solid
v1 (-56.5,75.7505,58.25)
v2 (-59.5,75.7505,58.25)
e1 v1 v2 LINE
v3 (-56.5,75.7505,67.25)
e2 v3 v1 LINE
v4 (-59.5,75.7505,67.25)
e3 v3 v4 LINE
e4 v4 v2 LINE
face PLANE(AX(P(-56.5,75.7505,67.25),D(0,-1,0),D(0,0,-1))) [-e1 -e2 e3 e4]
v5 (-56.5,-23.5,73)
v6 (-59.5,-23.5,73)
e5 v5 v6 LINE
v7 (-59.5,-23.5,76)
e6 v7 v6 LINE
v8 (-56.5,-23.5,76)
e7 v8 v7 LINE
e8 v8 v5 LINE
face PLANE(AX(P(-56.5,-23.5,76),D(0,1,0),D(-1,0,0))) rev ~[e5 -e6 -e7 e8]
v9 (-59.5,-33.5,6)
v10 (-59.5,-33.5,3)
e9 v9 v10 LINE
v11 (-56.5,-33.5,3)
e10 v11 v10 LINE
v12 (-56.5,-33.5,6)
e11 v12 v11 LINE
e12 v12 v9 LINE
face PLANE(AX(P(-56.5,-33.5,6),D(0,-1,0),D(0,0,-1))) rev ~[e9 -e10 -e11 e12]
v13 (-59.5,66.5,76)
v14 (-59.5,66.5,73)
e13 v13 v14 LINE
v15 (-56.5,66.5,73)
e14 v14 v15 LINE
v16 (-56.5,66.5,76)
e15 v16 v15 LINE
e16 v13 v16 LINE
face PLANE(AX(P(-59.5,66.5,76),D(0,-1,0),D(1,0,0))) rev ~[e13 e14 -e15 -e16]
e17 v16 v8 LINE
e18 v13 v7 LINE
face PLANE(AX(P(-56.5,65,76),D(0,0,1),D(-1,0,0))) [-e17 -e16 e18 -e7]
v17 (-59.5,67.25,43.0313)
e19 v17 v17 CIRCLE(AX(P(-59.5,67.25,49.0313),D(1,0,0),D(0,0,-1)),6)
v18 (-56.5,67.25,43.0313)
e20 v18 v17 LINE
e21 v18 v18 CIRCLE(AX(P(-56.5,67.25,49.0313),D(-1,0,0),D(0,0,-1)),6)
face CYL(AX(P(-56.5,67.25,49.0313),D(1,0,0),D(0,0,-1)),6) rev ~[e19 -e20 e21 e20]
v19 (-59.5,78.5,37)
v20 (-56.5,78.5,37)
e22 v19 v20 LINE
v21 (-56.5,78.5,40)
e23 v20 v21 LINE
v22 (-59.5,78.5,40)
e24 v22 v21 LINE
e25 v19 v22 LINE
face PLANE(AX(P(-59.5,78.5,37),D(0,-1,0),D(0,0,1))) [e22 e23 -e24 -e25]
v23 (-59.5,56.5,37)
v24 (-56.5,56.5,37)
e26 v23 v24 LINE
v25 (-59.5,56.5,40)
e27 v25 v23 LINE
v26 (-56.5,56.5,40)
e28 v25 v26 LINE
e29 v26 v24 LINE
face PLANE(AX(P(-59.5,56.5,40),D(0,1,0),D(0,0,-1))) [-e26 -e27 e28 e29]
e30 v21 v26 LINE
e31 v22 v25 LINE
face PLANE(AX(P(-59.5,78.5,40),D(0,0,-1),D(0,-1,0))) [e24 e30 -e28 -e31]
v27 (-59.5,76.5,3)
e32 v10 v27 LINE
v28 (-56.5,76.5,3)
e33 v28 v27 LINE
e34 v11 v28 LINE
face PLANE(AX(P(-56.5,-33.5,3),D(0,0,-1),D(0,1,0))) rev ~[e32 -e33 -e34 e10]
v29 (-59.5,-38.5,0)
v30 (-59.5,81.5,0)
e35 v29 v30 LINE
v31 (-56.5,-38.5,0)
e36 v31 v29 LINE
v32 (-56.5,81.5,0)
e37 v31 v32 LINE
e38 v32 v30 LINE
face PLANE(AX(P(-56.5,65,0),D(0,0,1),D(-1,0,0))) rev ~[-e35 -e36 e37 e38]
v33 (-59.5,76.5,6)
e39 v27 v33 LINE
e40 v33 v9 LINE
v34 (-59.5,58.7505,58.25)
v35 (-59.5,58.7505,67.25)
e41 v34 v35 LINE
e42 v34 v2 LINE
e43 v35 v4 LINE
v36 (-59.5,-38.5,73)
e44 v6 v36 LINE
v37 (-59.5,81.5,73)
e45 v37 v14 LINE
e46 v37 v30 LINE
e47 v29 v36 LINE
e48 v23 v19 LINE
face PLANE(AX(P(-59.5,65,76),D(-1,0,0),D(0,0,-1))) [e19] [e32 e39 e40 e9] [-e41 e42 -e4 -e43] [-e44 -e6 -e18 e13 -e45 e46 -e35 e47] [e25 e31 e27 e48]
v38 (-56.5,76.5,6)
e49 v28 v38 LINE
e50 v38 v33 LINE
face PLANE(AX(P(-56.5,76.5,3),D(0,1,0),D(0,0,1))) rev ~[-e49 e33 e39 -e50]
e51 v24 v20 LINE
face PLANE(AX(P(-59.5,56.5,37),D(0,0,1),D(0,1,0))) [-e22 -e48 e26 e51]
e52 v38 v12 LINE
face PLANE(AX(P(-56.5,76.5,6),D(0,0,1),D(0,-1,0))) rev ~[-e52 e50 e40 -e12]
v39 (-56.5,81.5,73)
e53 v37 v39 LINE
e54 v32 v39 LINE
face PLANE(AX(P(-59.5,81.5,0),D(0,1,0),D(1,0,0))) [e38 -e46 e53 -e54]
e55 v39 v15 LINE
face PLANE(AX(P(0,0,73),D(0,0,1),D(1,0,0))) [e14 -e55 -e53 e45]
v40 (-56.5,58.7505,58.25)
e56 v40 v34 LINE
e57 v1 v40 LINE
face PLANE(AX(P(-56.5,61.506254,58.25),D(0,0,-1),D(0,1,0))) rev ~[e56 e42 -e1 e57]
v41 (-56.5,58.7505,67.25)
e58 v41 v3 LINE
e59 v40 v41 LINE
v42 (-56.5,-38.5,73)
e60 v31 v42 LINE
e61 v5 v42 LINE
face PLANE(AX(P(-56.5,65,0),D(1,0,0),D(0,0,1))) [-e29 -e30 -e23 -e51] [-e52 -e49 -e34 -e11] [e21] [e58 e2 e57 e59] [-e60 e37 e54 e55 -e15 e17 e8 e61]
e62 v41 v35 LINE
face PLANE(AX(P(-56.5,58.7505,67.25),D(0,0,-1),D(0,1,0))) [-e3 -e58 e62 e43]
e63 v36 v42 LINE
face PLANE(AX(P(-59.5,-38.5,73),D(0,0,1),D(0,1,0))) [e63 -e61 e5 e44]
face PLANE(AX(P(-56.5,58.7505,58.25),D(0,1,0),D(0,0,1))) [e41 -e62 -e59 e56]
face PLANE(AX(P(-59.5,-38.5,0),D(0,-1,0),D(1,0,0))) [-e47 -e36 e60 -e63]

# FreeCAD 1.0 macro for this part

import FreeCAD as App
import Part
import Sketcher

V = App.Vector
Q = App.Units.Quantity


def add_polygon(sketch, points):
    """Adds a closed chain of lines whose ends are joined by coincident constraints."""
    first, n = sketch.GeometryCount, len(points)
    for a, b in zip(points, points[1:] + points[:1]):
        sketch.addGeometry(Part.LineSegment(App.Vector(*a, 0), App.Vector(*b, 0)), False)
    for i in range(n):
        sketch.addConstraint(Sketcher.Constraint("Coincident", first + i, 2, first + (i + 1) % n, 1))

doc = App.newDocument("Part")
params = doc.addObject("Spreadsheet::Sheet", "Params")
for row, (alias, value) in enumerate([
    ("sketch1_width", "3 mm"),
    ("sketch1_height", "90 mm"),
    ("pad1_length", "76 mm"),
    ("sketch2_width", "3 mm"),
    ("sketch2_height", "76 mm"),
    ("pad2_length", "13.5 mm"),
    ("sketch3_width", "3 mm"),
    ("sketch3_height", "76 mm"),
    ("pad3_length", "16.5 mm"),
    ("sketch4_width", "10 mm"),
    ("sketch4_height", "3 mm"),
    ("pocket1_length", "10 mm"),
    ("sketch5_height", "15 mm"),
    ("sketch5_width", "3 mm"),
    ("pocket2_length", "3 mm"),
    ("sketch6_diameter", "12 mm"),
    ("sketch6_height", "9 mm"),
    ("sketch6_width", "17 mm"),
    ("pocket3_length", "3 mm"),
    ("sketch7_width", "22 mm"),
    ("sketch7_height", "3 mm"),
    ("pocket4_length", "3 mm"),
    ("sketch8_width", "110 mm"),
    ("sketch8_height", "3 mm"),
    ("pocket5_length", "3 mm"),
], start=1):
    params.set(f"A{row}", alias)
    params.set(f"B{row}", "=" + value)
    params.setAlias(f"B{row}", alias)

body = doc.addObject("PartDesign::Body", "Body")

# Sketch on XY plane
sketch1 = doc.addObject("Sketcher::SketchObject", "Sketch")
body.addObject(sketch1)
sketch1.AttachmentSupport = (doc.XY_Plane, [""])
sketch1.MapMode = "FlatFace"
add_polygon(sketch1, [(-59.5, -25), (-56.5, -25), (-56.5, 65), (-59.5, 65)])  # lines 0-3
sketch1.addConstraint(Sketcher.Constraint("Horizontal", 0))
sketch1.addConstraint(Sketcher.Constraint("Vertical", 1))
sketch1.addConstraint(Sketcher.Constraint("Horizontal", 2))
sketch1.addConstraint(Sketcher.Constraint("Vertical", 3))
sketch1.addConstraint(Sketcher.Constraint("DistanceX", 0, 1, 0, 2, Q("3 mm")))
sketch1.addConstraint(Sketcher.Constraint("DistanceY", 1, 1, 1, 2, Q("90 mm")))
sketch1.addConstraint(Sketcher.Constraint("DistanceY", 0, 2, -1, 1, Q("25 mm")))
sketch1.addConstraint(Sketcher.Constraint("DistanceX", 0, 2, -1, 1, Q("56.5 mm")))
sketch1.setExpression("Constraints[8]", "Params.sketch1_width")
sketch1.setExpression("Constraints[9]", "Params.sketch1_height")
pad1 = doc.addObject("PartDesign::Pad", "Pad")
body.addObject(pad1)
pad1.Profile = sketch1
pad1.setExpression("Length", "Params.pad1_length")

# Sketch on XZ plane
sketch2 = doc.addObject("Sketcher::SketchObject", "Sketch001")
body.addObject(sketch2)
sketch2.AttachmentSupport = (doc.XZ_Plane, [""])
sketch2.MapMode = "FlatFace"
sketch2.AttachmentOffset = App.Placement(V(0, 0, 25), App.Rotation())
add_polygon(sketch2, [(-59.5, 0), (-56.5, 0), (-56.5, 76), (-59.5, 76)])  # lines 0-3
sketch2.addConstraint(Sketcher.Constraint("Horizontal", 0))
sketch2.addConstraint(Sketcher.Constraint("Vertical", 1))
sketch2.addConstraint(Sketcher.Constraint("Horizontal", 2))
sketch2.addConstraint(Sketcher.Constraint("Vertical", 3))
sketch2.addConstraint(Sketcher.Constraint("PointOnObject", 0, 2, -1))
sketch2.addConstraint(Sketcher.Constraint("DistanceX", 0, 1, 0, 2, Q("3 mm")))
sketch2.addConstraint(Sketcher.Constraint("DistanceY", 1, 1, 1, 2, Q("76 mm")))
sketch2.addConstraint(Sketcher.Constraint("DistanceX", 0, 2, -1, 1, Q("56.5 mm")))
sketch2.setExpression("Constraints[9]", "Params.sketch2_width")
sketch2.setExpression("Constraints[10]", "Params.sketch2_height")
pad2 = doc.addObject("PartDesign::Pad", "Pad001")
body.addObject(pad2)
pad2.Profile = sketch2
pad2.setExpression("Length", "Params.pad2_length")

# Sketch on XZ plane
sketch3 = doc.addObject("Sketcher::SketchObject", "Sketch002")
body.addObject(sketch3)
sketch3.AttachmentSupport = (doc.XZ_Plane, [""])
sketch3.MapMode = "FlatFace"
sketch3.AttachmentOffset = App.Placement(V(0, 0, -65), App.Rotation())
add_polygon(sketch3, [(-56.5, 76), (-56.5, 0), (-59.5, 0), (-59.5, 76)])  # lines 0-3
sketch3.addConstraint(Sketcher.Constraint("Vertical", 0))
sketch3.addConstraint(Sketcher.Constraint("Horizontal", 1))
sketch3.addConstraint(Sketcher.Constraint("Vertical", 2))
sketch3.addConstraint(Sketcher.Constraint("Horizontal", 3))
sketch3.addConstraint(Sketcher.Constraint("PointOnObject", 0, 2, -1))
sketch3.addConstraint(Sketcher.Constraint("DistanceX", 1, 2, 1, 1, Q("3 mm")))
sketch3.addConstraint(Sketcher.Constraint("DistanceY", 0, 2, 0, 1, Q("76 mm")))
sketch3.addConstraint(Sketcher.Constraint("DistanceX", 0, 2, -1, 1, Q("56.5 mm")))
sketch3.setExpression("Constraints[9]", "Params.sketch3_width")
sketch3.setExpression("Constraints[10]", "Params.sketch3_height")
pad3 = doc.addObject("PartDesign::Pad", "Pad002")
body.addObject(pad3)
pad3.Profile = sketch3
pad3.setExpression("Length", "Params.pad3_length")
pad3.Reversed = True

# Sketch on YZ plane
sketch4 = doc.addObject("Sketcher::SketchObject", "Sketch003")
body.addObject(sketch4)
sketch4.AttachmentSupport = (doc.YZ_Plane, [""])
sketch4.MapMode = "FlatFace"
sketch4.AttachmentOffset = App.Placement(V(0, 0, -59.5), App.Rotation())
add_polygon(sketch4, [(-38.5, 76), (-28.5, 76), (-28.5, 73), (-38.5, 73)])  # lines 0-3
add_polygon(sketch4, [(81.5, 76), (81.5, 73), (71.5, 73), (71.5, 76)])  # lines 4-7
sketch4.addConstraint(Sketcher.Constraint("Horizontal", 0))
sketch4.addConstraint(Sketcher.Constraint("Vertical", 1))
sketch4.addConstraint(Sketcher.Constraint("Horizontal", 2))
sketch4.addConstraint(Sketcher.Constraint("Vertical", 3))
sketch4.addConstraint(Sketcher.Constraint("Vertical", 4))
sketch4.addConstraint(Sketcher.Constraint("Horizontal", 5))
sketch4.addConstraint(Sketcher.Constraint("Vertical", 6))
sketch4.addConstraint(Sketcher.Constraint("Horizontal", 7))
sketch4.addConstraint(Sketcher.Constraint("Horizontal", 2, 2, 4, 2))
sketch4.addConstraint(Sketcher.Constraint("Horizontal", 3, 2, 6, 2))
sketch4.addConstraint(Sketcher.Constraint("Equal", 2, 5))
sketch4.addConstraint(Sketcher.Constraint("DistanceX", 0, 1, 0, 2, Q("10 mm")))
sketch4.addConstraint(Sketcher.Constraint("DistanceY", 1, 2, 1, 1, Q("3 mm")))
sketch4.addConstraint(Sketcher.Constraint("DistanceY", -1, 1, 0, 2, Q("76 mm")))
sketch4.addConstraint(Sketcher.Constraint("DistanceX", 1, 2, 4, 2, Q("110 mm")))
sketch4.addConstraint(Sketcher.Constraint("DistanceX", 0, 2, -1, 1, Q("28.5 mm")))
sketch4.setExpression("Constraints[19]", "Params.sketch4_width")
sketch4.setExpression("Constraints[20]", "Params.sketch4_height")
pocket1 = doc.addObject("PartDesign::Pocket", "Pocket")
body.addObject(pocket1)
pocket1.Profile = sketch4
pocket1.setExpression("Length", "Params.pocket1_length")
pocket1.Reversed = True

# Sketch on XY plane
sketch5 = doc.addObject("Sketcher::SketchObject", "Sketch004")
body.addObject(sketch5)
sketch5.AttachmentSupport = (doc.XY_Plane, [""])
sketch5.MapMode = "FlatFace"
sketch5.AttachmentOffset = App.Placement(V(0, 0, 76), App.Rotation())
add_polygon(sketch5, [(-59.5, -23.5), (-59.5, -38.5), (-56.5, -38.5), (-56.5, -23.5)])  # lines 0-3
add_polygon(sketch5, [(-59.5, 81.5), (-59.5, 66.5), (-56.5, 66.5), (-56.5, 81.5)])  # lines 4-7
sketch5.addConstraint(Sketcher.Constraint("Vertical", 0))
sketch5.addConstraint(Sketcher.Constraint("Horizontal", 1))
sketch5.addConstraint(Sketcher.Constraint("Vertical", 2))
sketch5.addConstraint(Sketcher.Constraint("Horizontal", 3))
sketch5.addConstraint(Sketcher.Constraint("Vertical", 4))
sketch5.addConstraint(Sketcher.Constraint("Horizontal", 5))
sketch5.addConstraint(Sketcher.Constraint("Vertical", 6))
sketch5.addConstraint(Sketcher.Constraint("Horizontal", 7))
sketch5.addConstraint(Sketcher.Constraint("Vertical", 3, 2, 4, 2))
sketch5.addConstraint(Sketcher.Constraint("Vertical", 2, 2, 5, 2))
sketch5.addConstraint(Sketcher.Constraint("Equal", 2, 4))
sketch5.addConstraint(Sketcher.Constraint("DistanceY", 0, 2, 0, 1, Q("15 mm")))
sketch5.addConstraint(Sketcher.Constraint("DistanceX", 1, 1, 1, 2, Q("3 mm")))
sketch5.addConstraint(Sketcher.Constraint("DistanceY", 3, 2, 4, 2, Q("90 mm")))
sketch5.addConstraint(Sketcher.Constraint("DistanceX", 0, 2, -1, 1, Q("59.5 mm")))
sketch5.addConstraint(Sketcher.Constraint("DistanceY", 0, 2, -1, 1, Q("38.5 mm")))
sketch5.setExpression("Constraints[19]", "Params.sketch5_height")
sketch5.setExpression("Constraints[20]", "Params.sketch5_width")
pocket2 = doc.addObject("PartDesign::Pocket", "Pocket001")
body.addObject(pocket2)
pocket2.Profile = sketch5
pocket2.setExpression("Length", "Params.pocket2_length")

# Sketch on YZ plane
sketch6 = doc.addObject("Sketcher::SketchObject", "Sketch005")
body.addObject(sketch6)
sketch6.AttachmentSupport = (doc.YZ_Plane, [""])
sketch6.MapMode = "FlatFace"
sketch6.AttachmentOffset = App.Placement(V(0, 0, -56.5), App.Rotation())
sketch6.addGeometry(Part.Circle(V(67.25, 49.0313, 0), V(0, 0, 1), 6), False)  # 0
add_polygon(sketch6, [(75.7505, 58.25), (75.7505, 67.25), (58.7505, 67.25), (58.7505, 58.25)])  # lines 1-4
sketch6.addConstraint(Sketcher.Constraint("Vertical", 1))
sketch6.addConstraint(Sketcher.Constraint("Horizontal", 2))
sketch6.addConstraint(Sketcher.Constraint("Vertical", 3))
sketch6.addConstraint(Sketcher.Constraint("Horizontal", 4))
sketch6.addConstraint(Sketcher.Constraint("Diameter", 0, Q("12 mm")))
sketch6.addConstraint(Sketcher.Constraint("DistanceY", 1, 1, 1, 2, Q("9 mm")))
sketch6.addConstraint(Sketcher.Constraint("DistanceX", 2, 2, 2, 1, Q("17 mm")))
sketch6.addConstraint(Sketcher.Constraint("DistanceX", -1, 1, 0, 3, Q("67.25 mm")))
sketch6.addConstraint(Sketcher.Constraint("DistanceY", -1, 1, 1, 2, Q("67.25 mm")))
sketch6.addConstraint(Sketcher.Constraint("DistanceY", -1, 1, 0, 3, Q("49.0313 mm")))
sketch6.addConstraint(Sketcher.Constraint("DistanceX", -1, 1, 1, 2, Q("75.7505 mm")))
sketch6.setExpression("Constraints[8]", "Params.sketch6_diameter")
sketch6.setExpression("Constraints[9]", "Params.sketch6_height")
sketch6.setExpression("Constraints[10]", "Params.sketch6_width")
pocket3 = doc.addObject("PartDesign::Pocket", "Pocket002")
body.addObject(pocket3)
pocket3.Profile = sketch6
pocket3.setExpression("Length", "Params.pocket3_length")

# Sketch on YZ plane
sketch7 = doc.addObject("Sketcher::SketchObject", "Sketch006")
body.addObject(sketch7)
sketch7.AttachmentSupport = (doc.YZ_Plane, [""])
sketch7.MapMode = "FlatFace"
sketch7.AttachmentOffset = App.Placement(V(0, 0, -59.5), App.Rotation())
add_polygon(sketch7, [(56.5, 40), (78.5, 40), (78.5, 37), (56.5, 37)])  # lines 0-3
sketch7.addConstraint(Sketcher.Constraint("Horizontal", 0))
sketch7.addConstraint(Sketcher.Constraint("Vertical", 1))
sketch7.addConstraint(Sketcher.Constraint("Horizontal", 2))
sketch7.addConstraint(Sketcher.Constraint("Vertical", 3))
sketch7.addConstraint(Sketcher.Constraint("DistanceX", 0, 1, 0, 2, Q("22 mm")))
sketch7.addConstraint(Sketcher.Constraint("DistanceY", 1, 2, 1, 1, Q("3 mm")))
sketch7.addConstraint(Sketcher.Constraint("DistanceY", -1, 1, 0, 2, Q("40 mm")))
sketch7.addConstraint(Sketcher.Constraint("DistanceX", -1, 1, 0, 2, Q("78.5 mm")))
sketch7.setExpression("Constraints[8]", "Params.sketch7_width")
sketch7.setExpression("Constraints[9]", "Params.sketch7_height")
pocket4 = doc.addObject("PartDesign::Pocket", "Pocket003")
body.addObject(pocket4)
pocket4.Profile = sketch7
pocket4.setExpression("Length", "Params.pocket4_length")
pocket4.Reversed = True

# Sketch on YZ plane
sketch8 = doc.addObject("Sketcher::SketchObject", "Sketch007")
body.addObject(sketch8)
sketch8.AttachmentSupport = (doc.YZ_Plane, [""])
sketch8.MapMode = "FlatFace"
sketch8.AttachmentOffset = App.Placement(V(0, 0, -56.5), App.Rotation())
add_polygon(sketch8, [(76.5, 3), (76.5, 6), (-33.5, 6), (-33.5, 3)])  # lines 0-3
sketch8.addConstraint(Sketcher.Constraint("Vertical", 0))
sketch8.addConstraint(Sketcher.Constraint("Horizontal", 1))
sketch8.addConstraint(Sketcher.Constraint("Vertical", 2))
sketch8.addConstraint(Sketcher.Constraint("Horizontal", 3))
sketch8.addConstraint(Sketcher.Constraint("DistanceX", 1, 2, 1, 1, Q("110 mm")))
sketch8.addConstraint(Sketcher.Constraint("DistanceY", 0, 1, 0, 2, Q("3 mm")))
sketch8.addConstraint(Sketcher.Constraint("DistanceY", -1, 1, 0, 2, Q("6 mm")))
sketch8.addConstraint(Sketcher.Constraint("DistanceX", -1, 1, 0, 2, Q("76.5 mm")))
sketch8.setExpression("Constraints[8]", "Params.sketch8_width")
sketch8.setExpression("Constraints[9]", "Params.sketch8_height")
pocket5 = doc.addObject("PartDesign::Pocket", "Pocket004")
body.addObject(pocket5)
pocket5.Profile = sketch8
pocket5.setExpression("Length", "Params.pocket5_length")

doc.recompute()
